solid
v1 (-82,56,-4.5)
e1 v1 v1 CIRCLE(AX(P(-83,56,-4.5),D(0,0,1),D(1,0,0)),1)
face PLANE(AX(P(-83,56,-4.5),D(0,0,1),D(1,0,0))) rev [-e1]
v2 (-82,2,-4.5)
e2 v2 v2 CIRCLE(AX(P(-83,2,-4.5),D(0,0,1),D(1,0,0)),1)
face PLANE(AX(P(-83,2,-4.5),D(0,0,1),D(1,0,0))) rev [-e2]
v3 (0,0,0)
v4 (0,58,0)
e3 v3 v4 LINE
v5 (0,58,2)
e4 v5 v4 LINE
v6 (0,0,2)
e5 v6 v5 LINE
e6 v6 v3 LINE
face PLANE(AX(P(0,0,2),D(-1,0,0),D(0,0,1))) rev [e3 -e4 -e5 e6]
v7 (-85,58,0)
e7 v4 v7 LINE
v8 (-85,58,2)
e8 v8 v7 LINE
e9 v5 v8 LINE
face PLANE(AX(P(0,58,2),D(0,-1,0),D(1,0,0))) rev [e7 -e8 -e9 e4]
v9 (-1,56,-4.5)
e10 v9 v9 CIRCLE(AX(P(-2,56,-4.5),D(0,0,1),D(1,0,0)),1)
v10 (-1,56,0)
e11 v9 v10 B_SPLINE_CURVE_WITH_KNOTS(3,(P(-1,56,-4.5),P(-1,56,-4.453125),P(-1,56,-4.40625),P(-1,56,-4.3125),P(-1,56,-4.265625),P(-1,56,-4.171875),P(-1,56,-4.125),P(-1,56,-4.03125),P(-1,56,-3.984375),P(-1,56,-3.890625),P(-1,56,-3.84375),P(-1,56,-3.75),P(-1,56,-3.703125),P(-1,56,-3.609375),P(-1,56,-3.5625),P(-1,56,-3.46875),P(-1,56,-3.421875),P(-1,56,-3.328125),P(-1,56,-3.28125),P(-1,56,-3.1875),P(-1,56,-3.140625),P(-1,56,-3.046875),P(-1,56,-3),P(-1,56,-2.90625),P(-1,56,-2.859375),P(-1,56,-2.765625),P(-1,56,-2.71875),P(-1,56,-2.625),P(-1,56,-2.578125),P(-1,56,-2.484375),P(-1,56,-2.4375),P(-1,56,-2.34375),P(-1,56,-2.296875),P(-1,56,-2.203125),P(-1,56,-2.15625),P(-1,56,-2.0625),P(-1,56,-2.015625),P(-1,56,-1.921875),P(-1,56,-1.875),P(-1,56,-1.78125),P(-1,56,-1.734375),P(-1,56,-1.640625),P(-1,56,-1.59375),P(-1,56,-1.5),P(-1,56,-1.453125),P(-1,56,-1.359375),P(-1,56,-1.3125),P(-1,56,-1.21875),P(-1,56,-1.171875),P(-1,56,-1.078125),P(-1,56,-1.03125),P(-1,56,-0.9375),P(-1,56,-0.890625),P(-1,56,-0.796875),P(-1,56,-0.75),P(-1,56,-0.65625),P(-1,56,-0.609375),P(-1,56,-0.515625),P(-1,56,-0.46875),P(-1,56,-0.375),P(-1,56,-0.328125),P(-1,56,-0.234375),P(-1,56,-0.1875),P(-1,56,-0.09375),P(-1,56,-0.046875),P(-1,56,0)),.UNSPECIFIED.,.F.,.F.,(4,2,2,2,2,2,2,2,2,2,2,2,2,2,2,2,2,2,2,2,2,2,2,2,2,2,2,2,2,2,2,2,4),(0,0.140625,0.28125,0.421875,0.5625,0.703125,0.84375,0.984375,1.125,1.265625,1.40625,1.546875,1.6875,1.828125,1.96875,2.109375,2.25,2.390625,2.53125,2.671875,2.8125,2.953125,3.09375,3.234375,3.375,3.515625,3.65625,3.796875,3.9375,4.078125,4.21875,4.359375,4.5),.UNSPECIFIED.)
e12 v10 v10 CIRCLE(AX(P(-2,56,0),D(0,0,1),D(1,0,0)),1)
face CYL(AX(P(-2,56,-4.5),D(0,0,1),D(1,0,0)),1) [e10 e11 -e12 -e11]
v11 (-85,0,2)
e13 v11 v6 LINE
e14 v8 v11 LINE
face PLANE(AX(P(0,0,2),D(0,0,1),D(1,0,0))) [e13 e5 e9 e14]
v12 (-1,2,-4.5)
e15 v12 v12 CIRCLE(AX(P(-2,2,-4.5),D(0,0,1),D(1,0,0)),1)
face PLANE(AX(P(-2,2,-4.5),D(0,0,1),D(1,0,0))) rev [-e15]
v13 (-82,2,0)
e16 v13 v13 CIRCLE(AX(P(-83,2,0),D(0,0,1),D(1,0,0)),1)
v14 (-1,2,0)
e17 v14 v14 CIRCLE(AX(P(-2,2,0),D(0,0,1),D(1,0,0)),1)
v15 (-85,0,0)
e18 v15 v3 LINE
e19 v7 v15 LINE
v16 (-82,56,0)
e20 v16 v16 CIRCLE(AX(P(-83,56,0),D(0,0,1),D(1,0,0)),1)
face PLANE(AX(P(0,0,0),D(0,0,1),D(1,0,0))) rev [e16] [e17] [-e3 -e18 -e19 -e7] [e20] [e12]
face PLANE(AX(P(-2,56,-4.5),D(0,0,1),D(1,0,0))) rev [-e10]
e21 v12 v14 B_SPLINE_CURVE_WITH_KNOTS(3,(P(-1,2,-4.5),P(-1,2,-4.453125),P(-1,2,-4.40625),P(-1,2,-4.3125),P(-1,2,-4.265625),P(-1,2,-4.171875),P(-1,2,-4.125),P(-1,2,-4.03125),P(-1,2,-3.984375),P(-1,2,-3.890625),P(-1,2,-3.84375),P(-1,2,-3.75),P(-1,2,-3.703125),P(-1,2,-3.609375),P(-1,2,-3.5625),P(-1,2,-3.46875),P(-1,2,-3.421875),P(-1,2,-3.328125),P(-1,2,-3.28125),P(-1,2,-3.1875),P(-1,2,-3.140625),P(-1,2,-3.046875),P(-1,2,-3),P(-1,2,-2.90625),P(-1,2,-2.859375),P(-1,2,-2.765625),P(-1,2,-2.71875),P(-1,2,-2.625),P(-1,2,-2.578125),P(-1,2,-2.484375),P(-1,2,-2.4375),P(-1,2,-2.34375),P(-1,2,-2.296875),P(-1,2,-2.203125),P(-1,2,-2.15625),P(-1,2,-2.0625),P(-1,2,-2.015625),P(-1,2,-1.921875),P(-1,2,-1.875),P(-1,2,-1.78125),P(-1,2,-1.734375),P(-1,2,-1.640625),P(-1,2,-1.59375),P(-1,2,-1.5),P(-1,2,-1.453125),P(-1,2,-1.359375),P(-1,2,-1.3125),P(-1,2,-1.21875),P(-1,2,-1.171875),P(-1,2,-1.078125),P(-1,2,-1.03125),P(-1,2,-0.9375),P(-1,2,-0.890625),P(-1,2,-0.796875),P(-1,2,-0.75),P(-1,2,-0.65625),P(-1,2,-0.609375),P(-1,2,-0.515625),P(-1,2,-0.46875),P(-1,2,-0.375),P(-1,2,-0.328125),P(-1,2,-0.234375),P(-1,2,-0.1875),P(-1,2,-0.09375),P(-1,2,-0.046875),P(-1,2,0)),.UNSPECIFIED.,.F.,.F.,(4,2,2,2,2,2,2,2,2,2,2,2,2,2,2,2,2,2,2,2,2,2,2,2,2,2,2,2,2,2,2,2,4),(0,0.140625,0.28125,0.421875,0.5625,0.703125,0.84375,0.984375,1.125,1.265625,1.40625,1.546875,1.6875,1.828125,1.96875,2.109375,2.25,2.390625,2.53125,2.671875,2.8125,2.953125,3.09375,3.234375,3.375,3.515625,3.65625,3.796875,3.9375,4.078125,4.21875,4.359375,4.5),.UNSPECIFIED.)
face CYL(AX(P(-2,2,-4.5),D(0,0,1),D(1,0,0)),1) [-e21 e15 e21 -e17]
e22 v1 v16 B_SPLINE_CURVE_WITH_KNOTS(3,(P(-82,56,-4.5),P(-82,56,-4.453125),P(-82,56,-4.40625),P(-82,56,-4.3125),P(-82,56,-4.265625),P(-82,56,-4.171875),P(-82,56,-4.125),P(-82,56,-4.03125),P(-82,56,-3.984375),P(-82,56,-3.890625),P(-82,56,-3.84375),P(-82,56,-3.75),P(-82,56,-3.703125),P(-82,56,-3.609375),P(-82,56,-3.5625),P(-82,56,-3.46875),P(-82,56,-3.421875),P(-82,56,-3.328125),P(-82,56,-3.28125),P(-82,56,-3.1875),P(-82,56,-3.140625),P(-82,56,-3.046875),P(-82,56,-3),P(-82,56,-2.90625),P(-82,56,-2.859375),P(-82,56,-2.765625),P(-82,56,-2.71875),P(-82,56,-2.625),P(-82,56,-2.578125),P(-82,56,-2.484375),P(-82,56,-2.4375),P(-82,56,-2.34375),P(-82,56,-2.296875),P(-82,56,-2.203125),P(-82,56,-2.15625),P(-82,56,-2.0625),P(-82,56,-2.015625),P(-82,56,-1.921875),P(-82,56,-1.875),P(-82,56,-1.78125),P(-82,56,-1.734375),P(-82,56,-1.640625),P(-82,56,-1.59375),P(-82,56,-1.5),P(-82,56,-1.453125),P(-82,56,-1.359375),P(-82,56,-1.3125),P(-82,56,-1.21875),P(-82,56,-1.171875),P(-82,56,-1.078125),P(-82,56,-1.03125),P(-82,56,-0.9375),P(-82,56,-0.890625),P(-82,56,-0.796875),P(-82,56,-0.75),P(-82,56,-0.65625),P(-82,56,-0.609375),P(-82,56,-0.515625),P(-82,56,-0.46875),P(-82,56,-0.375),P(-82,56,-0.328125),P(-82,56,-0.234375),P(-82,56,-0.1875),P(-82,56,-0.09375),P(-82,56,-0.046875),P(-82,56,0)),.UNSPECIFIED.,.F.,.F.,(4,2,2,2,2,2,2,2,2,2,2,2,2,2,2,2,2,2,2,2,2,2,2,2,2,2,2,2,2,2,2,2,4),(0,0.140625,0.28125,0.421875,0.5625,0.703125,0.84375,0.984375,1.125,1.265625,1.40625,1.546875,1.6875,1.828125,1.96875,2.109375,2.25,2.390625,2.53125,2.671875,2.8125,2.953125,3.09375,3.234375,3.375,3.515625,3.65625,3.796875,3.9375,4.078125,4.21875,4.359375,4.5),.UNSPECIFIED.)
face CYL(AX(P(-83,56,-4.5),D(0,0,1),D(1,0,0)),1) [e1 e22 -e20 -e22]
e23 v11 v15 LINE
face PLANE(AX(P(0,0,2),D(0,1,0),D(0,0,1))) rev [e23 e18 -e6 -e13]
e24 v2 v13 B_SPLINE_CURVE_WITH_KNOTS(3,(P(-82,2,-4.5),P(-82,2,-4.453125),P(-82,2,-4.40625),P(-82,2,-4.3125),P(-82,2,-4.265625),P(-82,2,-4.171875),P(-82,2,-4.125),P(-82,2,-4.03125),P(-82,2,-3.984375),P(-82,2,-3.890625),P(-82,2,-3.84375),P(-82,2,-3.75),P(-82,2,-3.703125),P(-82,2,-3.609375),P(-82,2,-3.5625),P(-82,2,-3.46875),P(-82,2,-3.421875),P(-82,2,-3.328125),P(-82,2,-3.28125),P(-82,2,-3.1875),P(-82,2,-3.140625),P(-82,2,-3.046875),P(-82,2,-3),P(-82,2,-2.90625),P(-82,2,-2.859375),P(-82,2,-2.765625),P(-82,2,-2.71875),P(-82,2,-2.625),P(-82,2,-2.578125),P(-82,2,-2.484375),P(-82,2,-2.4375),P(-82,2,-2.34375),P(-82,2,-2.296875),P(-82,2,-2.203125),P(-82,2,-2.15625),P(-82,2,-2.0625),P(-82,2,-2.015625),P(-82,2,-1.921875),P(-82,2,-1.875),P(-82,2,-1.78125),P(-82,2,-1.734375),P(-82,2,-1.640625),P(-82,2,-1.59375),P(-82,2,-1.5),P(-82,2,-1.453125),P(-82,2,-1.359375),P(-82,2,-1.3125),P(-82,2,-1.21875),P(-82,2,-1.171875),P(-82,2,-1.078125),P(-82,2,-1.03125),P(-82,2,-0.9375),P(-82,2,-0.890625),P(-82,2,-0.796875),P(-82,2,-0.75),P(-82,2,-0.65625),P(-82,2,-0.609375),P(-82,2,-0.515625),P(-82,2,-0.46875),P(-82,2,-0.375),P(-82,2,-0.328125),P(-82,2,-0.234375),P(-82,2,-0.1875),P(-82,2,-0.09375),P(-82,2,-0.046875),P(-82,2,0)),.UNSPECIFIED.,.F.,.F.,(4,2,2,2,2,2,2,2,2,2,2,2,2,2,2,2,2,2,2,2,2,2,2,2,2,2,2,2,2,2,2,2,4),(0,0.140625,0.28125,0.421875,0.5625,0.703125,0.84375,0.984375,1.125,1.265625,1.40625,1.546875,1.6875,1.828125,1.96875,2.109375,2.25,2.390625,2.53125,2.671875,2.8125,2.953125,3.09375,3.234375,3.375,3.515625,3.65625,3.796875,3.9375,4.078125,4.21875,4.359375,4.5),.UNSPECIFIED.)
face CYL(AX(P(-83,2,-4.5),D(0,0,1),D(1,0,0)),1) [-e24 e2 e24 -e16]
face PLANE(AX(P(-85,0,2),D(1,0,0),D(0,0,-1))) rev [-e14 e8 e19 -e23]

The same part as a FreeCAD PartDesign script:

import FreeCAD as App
import Part
import Sketcher
from FreeCAD import Vector

doc = App.newDocument("Part")
body = doc.addObject("PartDesign::Body", "Body")

# Sketch on XY plane
sketch1 = body.newObject("Sketcher::SketchObject", "Sketch")
sketch1.AttachmentSupport = (doc.getObject("XY_Plane"), [""])
sketch1.MapMode = "FlatFace"
sketch1.addGeometry([
    Part.LineSegment(Vector(-85, 58, 0), Vector(-85, 0, 0)),
    Part.LineSegment(Vector(-85, 0, 0), Vector(0, 0, 0)),
    Part.LineSegment(Vector(0, 0, 0), Vector(0, 58, 0)),
    Part.LineSegment(Vector(0, 58, 0), Vector(-85, 58, 0)),
], False)
sketch1.addConstraint([
    Sketcher.Constraint("Coincident", 0, 2, 1, 1),
    Sketcher.Constraint("Coincident", 1, 2, 2, 1),
    Sketcher.Constraint("Coincident", 2, 2, 3, 1),
    Sketcher.Constraint("Coincident", 3, 2, 0, 1),
    Sketcher.Constraint("Vertical", 0),
    Sketcher.Constraint("Horizontal", 1),
    Sketcher.Constraint("Vertical", 2),
    Sketcher.Constraint("Horizontal", 3),
    Sketcher.Constraint("Coincident", 1, 2, -1, 1),
    Sketcher.Constraint("DistanceX", 1, 1, 1, 2, 85.0),
    Sketcher.Constraint("DistanceY", 0, 2, 0, 1, 58.0),
])
pad1 = body.newObject("PartDesign::Pad", "Pad")
pad1.Profile = sketch1
pad1.Length = 2

# Sketch on XY plane
sketch2 = body.newObject("Sketcher::SketchObject", "Sketch001")
sketch2.AttachmentSupport = (doc.getObject("XY_Plane"), [""])
sketch2.MapMode = "FlatFace"
sketch2.AttachmentOffset = App.Placement(Vector(0, 0, 2), App.Rotation())
sketch2.addGeometry([
    Part.Circle(Vector(-83, 56, 0), Vector(0, 0, 1), 1),
    Part.Circle(Vector(-2, 56, 0), Vector(0, 0, 1), 1),
    Part.Circle(Vector(-83, 2, 0), Vector(0, 0, 1), 1),
    Part.Circle(Vector(-2, 2, 0), Vector(0, 0, 1), 1),
], False)
sketch2.addConstraint([
    Sketcher.Constraint("Equal", 0, 1),
    Sketcher.Constraint("Equal", 1, 2),
    Sketcher.Constraint("Equal", 2, 3),
    Sketcher.Constraint("Horizontal", 0, 3, 1, 3),
    Sketcher.Constraint("Horizontal", 2, 3, 3, 3),
    Sketcher.Constraint("Vertical", 0, 3, 2, 3),
    Sketcher.Constraint("Vertical", 1, 3, 3, 3),
    Sketcher.Constraint("Diameter", 0, 2.0),
    Sketcher.Constraint("DistanceX", 0, 3, -1, 1, 83.0),
    Sketcher.Constraint("DistanceY", -1, 1, 0, 3, 56.0),
    Sketcher.Constraint("DistanceX", 1, 3, -1, 1, 2.0),
    Sketcher.Constraint("DistanceY", -1, 1, 2, 3, 2.0),
])
pad2 = body.newObject("PartDesign::Pad", "Pad001")
pad2.Profile = sketch2
pad2.Length = 6.5
pad2.Reversed = True

doc.recompute()
